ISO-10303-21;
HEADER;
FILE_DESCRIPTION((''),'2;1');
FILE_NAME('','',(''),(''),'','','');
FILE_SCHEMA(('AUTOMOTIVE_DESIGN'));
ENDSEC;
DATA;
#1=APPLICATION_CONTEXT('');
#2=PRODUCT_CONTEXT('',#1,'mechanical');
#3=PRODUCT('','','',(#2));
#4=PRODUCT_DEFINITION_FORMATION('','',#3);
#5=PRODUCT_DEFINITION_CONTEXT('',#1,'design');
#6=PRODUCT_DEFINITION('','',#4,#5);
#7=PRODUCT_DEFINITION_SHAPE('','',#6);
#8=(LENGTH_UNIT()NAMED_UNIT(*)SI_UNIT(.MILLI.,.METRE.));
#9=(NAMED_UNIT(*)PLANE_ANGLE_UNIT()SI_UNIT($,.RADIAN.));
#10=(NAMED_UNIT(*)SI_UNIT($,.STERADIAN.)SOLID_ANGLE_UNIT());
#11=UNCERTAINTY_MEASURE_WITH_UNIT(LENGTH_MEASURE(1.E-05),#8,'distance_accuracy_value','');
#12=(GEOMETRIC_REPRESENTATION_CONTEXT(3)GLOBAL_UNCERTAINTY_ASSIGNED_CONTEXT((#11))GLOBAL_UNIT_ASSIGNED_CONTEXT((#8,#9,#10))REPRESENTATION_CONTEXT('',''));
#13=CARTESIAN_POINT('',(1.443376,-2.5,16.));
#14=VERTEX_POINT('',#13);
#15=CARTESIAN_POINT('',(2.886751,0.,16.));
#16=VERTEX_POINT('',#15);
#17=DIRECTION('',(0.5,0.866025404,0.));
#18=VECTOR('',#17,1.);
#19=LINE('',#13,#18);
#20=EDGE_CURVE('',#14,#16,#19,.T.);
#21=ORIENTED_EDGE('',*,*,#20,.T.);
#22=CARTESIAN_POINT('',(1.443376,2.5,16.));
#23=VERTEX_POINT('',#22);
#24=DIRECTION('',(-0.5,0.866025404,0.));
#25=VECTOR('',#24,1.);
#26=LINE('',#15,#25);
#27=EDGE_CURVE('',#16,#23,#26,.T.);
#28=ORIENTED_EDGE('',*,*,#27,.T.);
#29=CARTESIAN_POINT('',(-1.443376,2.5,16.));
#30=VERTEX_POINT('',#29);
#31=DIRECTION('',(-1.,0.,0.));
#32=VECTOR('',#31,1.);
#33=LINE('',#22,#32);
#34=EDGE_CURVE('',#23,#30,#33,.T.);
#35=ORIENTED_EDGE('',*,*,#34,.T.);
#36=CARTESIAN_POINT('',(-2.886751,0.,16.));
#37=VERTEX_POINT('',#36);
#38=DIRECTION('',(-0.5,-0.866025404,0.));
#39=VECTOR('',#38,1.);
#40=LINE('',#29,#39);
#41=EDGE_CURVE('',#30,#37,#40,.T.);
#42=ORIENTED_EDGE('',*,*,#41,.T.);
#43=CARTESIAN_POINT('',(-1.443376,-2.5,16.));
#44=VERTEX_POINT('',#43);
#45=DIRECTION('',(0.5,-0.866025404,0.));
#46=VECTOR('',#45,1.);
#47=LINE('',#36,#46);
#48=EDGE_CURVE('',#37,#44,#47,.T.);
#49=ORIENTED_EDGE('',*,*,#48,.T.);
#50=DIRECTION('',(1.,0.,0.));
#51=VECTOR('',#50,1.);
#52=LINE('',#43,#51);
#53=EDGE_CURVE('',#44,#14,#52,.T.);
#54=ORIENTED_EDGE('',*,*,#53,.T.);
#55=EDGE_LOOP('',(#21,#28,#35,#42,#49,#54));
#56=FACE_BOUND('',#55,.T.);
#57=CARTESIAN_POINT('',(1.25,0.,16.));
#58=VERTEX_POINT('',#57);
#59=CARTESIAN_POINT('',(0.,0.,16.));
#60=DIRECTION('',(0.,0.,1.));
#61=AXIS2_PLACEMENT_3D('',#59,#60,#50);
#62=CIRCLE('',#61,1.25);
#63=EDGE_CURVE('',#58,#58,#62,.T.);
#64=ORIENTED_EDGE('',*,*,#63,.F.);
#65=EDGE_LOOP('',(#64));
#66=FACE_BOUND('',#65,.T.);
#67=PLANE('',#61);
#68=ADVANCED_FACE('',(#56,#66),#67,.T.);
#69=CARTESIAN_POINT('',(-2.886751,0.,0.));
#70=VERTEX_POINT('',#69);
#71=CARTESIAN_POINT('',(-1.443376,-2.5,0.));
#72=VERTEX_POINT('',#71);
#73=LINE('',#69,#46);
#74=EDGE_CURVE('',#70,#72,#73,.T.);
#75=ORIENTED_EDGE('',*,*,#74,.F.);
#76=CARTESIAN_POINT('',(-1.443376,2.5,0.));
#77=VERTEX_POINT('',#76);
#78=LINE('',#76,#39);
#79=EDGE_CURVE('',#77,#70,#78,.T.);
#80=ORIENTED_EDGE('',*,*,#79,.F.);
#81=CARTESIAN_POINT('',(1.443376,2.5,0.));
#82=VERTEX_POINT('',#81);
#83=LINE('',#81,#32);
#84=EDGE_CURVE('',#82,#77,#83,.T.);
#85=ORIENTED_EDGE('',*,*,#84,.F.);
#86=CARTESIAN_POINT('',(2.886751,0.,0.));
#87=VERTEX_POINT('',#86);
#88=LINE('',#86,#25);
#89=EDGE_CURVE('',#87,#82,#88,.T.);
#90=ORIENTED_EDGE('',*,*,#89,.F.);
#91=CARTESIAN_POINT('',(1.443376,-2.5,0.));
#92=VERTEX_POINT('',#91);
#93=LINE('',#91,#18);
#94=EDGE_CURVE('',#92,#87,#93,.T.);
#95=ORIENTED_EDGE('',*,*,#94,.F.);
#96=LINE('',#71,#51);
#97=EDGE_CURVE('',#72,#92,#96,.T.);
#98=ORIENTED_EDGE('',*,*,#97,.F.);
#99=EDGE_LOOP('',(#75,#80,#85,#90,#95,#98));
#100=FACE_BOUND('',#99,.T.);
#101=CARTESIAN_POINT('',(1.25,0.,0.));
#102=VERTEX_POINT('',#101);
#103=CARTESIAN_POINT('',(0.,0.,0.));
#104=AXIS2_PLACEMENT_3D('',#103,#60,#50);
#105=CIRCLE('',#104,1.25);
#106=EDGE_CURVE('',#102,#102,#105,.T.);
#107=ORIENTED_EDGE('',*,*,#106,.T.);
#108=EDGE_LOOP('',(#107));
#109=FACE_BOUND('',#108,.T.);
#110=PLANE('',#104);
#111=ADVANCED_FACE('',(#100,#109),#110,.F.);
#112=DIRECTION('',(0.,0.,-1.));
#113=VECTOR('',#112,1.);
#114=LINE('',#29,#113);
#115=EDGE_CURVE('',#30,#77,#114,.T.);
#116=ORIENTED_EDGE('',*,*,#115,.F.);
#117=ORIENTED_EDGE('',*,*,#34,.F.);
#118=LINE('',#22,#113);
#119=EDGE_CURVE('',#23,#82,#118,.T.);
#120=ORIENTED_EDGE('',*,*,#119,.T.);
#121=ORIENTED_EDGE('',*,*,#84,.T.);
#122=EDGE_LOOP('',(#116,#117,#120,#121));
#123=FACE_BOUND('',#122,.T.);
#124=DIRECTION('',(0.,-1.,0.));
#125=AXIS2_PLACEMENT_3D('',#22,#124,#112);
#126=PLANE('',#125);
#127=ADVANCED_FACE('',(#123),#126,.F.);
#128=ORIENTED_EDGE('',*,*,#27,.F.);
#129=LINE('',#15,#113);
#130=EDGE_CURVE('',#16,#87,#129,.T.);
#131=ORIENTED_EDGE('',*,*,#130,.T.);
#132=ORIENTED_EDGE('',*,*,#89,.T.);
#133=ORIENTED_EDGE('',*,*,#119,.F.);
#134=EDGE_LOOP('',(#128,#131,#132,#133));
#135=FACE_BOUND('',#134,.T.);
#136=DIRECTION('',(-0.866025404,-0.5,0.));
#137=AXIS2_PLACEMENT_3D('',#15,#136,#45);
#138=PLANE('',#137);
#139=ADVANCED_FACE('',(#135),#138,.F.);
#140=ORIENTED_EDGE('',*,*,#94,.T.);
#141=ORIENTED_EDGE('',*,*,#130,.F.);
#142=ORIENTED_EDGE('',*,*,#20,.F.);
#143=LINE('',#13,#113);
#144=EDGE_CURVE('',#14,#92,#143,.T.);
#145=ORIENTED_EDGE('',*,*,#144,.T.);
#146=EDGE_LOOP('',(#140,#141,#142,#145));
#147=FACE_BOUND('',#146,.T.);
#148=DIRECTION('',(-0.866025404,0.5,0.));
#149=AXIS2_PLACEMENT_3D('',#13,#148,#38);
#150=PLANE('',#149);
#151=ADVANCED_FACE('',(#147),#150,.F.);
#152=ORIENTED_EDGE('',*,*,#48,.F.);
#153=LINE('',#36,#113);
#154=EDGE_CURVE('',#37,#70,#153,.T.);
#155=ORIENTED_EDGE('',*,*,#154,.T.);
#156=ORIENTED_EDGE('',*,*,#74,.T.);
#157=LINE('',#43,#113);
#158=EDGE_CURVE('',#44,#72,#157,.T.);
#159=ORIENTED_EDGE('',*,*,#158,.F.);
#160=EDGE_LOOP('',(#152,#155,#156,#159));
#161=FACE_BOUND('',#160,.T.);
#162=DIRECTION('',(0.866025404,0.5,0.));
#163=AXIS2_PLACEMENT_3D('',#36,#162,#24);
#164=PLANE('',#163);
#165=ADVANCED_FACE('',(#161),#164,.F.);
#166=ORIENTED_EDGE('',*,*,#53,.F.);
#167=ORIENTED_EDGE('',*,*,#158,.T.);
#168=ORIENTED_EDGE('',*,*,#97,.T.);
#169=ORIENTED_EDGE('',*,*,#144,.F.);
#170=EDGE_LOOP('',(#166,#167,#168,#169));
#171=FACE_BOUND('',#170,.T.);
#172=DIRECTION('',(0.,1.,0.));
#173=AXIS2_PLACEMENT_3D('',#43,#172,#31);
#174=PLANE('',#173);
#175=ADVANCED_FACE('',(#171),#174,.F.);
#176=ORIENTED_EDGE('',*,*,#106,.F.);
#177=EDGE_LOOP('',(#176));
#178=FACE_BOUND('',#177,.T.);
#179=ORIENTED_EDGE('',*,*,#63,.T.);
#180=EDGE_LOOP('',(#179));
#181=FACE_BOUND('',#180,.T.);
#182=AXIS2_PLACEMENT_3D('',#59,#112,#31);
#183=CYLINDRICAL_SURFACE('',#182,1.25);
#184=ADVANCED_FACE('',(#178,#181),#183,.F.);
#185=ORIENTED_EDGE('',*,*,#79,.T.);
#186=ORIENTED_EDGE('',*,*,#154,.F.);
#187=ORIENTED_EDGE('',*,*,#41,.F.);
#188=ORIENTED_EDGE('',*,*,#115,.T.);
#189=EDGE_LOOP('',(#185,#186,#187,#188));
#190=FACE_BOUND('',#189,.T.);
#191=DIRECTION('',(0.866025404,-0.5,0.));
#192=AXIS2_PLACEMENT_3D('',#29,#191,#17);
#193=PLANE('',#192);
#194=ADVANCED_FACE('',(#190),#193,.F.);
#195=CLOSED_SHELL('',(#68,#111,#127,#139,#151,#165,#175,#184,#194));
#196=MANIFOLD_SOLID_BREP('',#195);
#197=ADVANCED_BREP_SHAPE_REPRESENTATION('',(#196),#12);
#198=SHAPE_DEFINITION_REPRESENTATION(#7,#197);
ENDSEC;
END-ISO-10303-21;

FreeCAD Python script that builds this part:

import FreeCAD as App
import Part
import Sketcher

V = App.Vector
Q = App.Units.Quantity


def add_polygon(sketch, points):
    """Adds a closed chain of lines whose ends are joined by coincident constraints."""
    first, n = sketch.GeometryCount, len(points)
    for a, b in zip(points, points[1:] + points[:1]):
        sketch.addGeometry(Part.LineSegment(App.Vector(*a, 0), App.Vector(*b, 0)), False)
    for i in range(n):
        sketch.addConstraint(Sketcher.Constraint("Coincident", first + i, 2, first + (i + 1) % n, 1))

doc = App.newDocument("Part")
params = doc.addObject("Spreadsheet::Sheet", "Params")
for row, (alias, value) in enumerate([
    ("sketch1_diameter", "2.5 mm"),
    ("pad1_length", "16 mm"),
], start=1):
    params.set(f"A{row}", alias)
    params.set(f"B{row}", "=" + value)
    params.setAlias(f"B{row}", alias)

body = doc.addObject("PartDesign::Body", "Body")

# Sketch on XY plane
sketch1 = body.newObject("Sketcher::SketchObject", "Sketch")
sketch1.AttachmentSupport = (doc.getObject("XY_Plane"), [""])
sketch1.MapMode = "FlatFace"
add_polygon(sketch1, [(2.886751, 0), (1.443376, 2.5), (-1.443376, 2.5), (-2.886751, 0), (-1.443376, -2.5), (1.443376, -2.5)])  # lines 0-5
sketch1.addGeometry(Part.Circle(V(0, 0, 0), V(0, 0, 1), 1.25), False)  # 6
sketch1.addConstraint([
    Sketcher.Constraint("Horizontal", 1),
    Sketcher.Constraint("Horizontal", 4),
    Sketcher.Constraint("Coincident", 6, 3, -1, 1),
    Sketcher.Constraint("Symmetric", 0, 2, 3, 2, -1, 1),
    Sketcher.Constraint("Symmetric", 2, 2, 5, 2, -1, 1),
    Sketcher.Constraint("PointOnObject", 2, 2, -1),
    Sketcher.Constraint("Parallel", 2, 5),
    Sketcher.Constraint("Vertical", 1, 2, 3, 2),
    Sketcher.Constraint("Diameter", 6, 2.5),
    Sketcher.Constraint("Angle", 0, Q("120 deg")),
    Sketcher.Constraint("DistanceY", 3, 2, 1, 2, 5.0),
    Sketcher.Constraint("DistanceX", 1, 2, 1, 1, 2.886751),
])
sketch1.setExpression("Constraints[14]", "Params.sketch1_diameter")
pad1 = body.newObject("PartDesign::Pad", "Pad")
pad1.Profile = sketch1
pad1.setExpression("Length", "Params.pad1_length")

doc.recompute()
